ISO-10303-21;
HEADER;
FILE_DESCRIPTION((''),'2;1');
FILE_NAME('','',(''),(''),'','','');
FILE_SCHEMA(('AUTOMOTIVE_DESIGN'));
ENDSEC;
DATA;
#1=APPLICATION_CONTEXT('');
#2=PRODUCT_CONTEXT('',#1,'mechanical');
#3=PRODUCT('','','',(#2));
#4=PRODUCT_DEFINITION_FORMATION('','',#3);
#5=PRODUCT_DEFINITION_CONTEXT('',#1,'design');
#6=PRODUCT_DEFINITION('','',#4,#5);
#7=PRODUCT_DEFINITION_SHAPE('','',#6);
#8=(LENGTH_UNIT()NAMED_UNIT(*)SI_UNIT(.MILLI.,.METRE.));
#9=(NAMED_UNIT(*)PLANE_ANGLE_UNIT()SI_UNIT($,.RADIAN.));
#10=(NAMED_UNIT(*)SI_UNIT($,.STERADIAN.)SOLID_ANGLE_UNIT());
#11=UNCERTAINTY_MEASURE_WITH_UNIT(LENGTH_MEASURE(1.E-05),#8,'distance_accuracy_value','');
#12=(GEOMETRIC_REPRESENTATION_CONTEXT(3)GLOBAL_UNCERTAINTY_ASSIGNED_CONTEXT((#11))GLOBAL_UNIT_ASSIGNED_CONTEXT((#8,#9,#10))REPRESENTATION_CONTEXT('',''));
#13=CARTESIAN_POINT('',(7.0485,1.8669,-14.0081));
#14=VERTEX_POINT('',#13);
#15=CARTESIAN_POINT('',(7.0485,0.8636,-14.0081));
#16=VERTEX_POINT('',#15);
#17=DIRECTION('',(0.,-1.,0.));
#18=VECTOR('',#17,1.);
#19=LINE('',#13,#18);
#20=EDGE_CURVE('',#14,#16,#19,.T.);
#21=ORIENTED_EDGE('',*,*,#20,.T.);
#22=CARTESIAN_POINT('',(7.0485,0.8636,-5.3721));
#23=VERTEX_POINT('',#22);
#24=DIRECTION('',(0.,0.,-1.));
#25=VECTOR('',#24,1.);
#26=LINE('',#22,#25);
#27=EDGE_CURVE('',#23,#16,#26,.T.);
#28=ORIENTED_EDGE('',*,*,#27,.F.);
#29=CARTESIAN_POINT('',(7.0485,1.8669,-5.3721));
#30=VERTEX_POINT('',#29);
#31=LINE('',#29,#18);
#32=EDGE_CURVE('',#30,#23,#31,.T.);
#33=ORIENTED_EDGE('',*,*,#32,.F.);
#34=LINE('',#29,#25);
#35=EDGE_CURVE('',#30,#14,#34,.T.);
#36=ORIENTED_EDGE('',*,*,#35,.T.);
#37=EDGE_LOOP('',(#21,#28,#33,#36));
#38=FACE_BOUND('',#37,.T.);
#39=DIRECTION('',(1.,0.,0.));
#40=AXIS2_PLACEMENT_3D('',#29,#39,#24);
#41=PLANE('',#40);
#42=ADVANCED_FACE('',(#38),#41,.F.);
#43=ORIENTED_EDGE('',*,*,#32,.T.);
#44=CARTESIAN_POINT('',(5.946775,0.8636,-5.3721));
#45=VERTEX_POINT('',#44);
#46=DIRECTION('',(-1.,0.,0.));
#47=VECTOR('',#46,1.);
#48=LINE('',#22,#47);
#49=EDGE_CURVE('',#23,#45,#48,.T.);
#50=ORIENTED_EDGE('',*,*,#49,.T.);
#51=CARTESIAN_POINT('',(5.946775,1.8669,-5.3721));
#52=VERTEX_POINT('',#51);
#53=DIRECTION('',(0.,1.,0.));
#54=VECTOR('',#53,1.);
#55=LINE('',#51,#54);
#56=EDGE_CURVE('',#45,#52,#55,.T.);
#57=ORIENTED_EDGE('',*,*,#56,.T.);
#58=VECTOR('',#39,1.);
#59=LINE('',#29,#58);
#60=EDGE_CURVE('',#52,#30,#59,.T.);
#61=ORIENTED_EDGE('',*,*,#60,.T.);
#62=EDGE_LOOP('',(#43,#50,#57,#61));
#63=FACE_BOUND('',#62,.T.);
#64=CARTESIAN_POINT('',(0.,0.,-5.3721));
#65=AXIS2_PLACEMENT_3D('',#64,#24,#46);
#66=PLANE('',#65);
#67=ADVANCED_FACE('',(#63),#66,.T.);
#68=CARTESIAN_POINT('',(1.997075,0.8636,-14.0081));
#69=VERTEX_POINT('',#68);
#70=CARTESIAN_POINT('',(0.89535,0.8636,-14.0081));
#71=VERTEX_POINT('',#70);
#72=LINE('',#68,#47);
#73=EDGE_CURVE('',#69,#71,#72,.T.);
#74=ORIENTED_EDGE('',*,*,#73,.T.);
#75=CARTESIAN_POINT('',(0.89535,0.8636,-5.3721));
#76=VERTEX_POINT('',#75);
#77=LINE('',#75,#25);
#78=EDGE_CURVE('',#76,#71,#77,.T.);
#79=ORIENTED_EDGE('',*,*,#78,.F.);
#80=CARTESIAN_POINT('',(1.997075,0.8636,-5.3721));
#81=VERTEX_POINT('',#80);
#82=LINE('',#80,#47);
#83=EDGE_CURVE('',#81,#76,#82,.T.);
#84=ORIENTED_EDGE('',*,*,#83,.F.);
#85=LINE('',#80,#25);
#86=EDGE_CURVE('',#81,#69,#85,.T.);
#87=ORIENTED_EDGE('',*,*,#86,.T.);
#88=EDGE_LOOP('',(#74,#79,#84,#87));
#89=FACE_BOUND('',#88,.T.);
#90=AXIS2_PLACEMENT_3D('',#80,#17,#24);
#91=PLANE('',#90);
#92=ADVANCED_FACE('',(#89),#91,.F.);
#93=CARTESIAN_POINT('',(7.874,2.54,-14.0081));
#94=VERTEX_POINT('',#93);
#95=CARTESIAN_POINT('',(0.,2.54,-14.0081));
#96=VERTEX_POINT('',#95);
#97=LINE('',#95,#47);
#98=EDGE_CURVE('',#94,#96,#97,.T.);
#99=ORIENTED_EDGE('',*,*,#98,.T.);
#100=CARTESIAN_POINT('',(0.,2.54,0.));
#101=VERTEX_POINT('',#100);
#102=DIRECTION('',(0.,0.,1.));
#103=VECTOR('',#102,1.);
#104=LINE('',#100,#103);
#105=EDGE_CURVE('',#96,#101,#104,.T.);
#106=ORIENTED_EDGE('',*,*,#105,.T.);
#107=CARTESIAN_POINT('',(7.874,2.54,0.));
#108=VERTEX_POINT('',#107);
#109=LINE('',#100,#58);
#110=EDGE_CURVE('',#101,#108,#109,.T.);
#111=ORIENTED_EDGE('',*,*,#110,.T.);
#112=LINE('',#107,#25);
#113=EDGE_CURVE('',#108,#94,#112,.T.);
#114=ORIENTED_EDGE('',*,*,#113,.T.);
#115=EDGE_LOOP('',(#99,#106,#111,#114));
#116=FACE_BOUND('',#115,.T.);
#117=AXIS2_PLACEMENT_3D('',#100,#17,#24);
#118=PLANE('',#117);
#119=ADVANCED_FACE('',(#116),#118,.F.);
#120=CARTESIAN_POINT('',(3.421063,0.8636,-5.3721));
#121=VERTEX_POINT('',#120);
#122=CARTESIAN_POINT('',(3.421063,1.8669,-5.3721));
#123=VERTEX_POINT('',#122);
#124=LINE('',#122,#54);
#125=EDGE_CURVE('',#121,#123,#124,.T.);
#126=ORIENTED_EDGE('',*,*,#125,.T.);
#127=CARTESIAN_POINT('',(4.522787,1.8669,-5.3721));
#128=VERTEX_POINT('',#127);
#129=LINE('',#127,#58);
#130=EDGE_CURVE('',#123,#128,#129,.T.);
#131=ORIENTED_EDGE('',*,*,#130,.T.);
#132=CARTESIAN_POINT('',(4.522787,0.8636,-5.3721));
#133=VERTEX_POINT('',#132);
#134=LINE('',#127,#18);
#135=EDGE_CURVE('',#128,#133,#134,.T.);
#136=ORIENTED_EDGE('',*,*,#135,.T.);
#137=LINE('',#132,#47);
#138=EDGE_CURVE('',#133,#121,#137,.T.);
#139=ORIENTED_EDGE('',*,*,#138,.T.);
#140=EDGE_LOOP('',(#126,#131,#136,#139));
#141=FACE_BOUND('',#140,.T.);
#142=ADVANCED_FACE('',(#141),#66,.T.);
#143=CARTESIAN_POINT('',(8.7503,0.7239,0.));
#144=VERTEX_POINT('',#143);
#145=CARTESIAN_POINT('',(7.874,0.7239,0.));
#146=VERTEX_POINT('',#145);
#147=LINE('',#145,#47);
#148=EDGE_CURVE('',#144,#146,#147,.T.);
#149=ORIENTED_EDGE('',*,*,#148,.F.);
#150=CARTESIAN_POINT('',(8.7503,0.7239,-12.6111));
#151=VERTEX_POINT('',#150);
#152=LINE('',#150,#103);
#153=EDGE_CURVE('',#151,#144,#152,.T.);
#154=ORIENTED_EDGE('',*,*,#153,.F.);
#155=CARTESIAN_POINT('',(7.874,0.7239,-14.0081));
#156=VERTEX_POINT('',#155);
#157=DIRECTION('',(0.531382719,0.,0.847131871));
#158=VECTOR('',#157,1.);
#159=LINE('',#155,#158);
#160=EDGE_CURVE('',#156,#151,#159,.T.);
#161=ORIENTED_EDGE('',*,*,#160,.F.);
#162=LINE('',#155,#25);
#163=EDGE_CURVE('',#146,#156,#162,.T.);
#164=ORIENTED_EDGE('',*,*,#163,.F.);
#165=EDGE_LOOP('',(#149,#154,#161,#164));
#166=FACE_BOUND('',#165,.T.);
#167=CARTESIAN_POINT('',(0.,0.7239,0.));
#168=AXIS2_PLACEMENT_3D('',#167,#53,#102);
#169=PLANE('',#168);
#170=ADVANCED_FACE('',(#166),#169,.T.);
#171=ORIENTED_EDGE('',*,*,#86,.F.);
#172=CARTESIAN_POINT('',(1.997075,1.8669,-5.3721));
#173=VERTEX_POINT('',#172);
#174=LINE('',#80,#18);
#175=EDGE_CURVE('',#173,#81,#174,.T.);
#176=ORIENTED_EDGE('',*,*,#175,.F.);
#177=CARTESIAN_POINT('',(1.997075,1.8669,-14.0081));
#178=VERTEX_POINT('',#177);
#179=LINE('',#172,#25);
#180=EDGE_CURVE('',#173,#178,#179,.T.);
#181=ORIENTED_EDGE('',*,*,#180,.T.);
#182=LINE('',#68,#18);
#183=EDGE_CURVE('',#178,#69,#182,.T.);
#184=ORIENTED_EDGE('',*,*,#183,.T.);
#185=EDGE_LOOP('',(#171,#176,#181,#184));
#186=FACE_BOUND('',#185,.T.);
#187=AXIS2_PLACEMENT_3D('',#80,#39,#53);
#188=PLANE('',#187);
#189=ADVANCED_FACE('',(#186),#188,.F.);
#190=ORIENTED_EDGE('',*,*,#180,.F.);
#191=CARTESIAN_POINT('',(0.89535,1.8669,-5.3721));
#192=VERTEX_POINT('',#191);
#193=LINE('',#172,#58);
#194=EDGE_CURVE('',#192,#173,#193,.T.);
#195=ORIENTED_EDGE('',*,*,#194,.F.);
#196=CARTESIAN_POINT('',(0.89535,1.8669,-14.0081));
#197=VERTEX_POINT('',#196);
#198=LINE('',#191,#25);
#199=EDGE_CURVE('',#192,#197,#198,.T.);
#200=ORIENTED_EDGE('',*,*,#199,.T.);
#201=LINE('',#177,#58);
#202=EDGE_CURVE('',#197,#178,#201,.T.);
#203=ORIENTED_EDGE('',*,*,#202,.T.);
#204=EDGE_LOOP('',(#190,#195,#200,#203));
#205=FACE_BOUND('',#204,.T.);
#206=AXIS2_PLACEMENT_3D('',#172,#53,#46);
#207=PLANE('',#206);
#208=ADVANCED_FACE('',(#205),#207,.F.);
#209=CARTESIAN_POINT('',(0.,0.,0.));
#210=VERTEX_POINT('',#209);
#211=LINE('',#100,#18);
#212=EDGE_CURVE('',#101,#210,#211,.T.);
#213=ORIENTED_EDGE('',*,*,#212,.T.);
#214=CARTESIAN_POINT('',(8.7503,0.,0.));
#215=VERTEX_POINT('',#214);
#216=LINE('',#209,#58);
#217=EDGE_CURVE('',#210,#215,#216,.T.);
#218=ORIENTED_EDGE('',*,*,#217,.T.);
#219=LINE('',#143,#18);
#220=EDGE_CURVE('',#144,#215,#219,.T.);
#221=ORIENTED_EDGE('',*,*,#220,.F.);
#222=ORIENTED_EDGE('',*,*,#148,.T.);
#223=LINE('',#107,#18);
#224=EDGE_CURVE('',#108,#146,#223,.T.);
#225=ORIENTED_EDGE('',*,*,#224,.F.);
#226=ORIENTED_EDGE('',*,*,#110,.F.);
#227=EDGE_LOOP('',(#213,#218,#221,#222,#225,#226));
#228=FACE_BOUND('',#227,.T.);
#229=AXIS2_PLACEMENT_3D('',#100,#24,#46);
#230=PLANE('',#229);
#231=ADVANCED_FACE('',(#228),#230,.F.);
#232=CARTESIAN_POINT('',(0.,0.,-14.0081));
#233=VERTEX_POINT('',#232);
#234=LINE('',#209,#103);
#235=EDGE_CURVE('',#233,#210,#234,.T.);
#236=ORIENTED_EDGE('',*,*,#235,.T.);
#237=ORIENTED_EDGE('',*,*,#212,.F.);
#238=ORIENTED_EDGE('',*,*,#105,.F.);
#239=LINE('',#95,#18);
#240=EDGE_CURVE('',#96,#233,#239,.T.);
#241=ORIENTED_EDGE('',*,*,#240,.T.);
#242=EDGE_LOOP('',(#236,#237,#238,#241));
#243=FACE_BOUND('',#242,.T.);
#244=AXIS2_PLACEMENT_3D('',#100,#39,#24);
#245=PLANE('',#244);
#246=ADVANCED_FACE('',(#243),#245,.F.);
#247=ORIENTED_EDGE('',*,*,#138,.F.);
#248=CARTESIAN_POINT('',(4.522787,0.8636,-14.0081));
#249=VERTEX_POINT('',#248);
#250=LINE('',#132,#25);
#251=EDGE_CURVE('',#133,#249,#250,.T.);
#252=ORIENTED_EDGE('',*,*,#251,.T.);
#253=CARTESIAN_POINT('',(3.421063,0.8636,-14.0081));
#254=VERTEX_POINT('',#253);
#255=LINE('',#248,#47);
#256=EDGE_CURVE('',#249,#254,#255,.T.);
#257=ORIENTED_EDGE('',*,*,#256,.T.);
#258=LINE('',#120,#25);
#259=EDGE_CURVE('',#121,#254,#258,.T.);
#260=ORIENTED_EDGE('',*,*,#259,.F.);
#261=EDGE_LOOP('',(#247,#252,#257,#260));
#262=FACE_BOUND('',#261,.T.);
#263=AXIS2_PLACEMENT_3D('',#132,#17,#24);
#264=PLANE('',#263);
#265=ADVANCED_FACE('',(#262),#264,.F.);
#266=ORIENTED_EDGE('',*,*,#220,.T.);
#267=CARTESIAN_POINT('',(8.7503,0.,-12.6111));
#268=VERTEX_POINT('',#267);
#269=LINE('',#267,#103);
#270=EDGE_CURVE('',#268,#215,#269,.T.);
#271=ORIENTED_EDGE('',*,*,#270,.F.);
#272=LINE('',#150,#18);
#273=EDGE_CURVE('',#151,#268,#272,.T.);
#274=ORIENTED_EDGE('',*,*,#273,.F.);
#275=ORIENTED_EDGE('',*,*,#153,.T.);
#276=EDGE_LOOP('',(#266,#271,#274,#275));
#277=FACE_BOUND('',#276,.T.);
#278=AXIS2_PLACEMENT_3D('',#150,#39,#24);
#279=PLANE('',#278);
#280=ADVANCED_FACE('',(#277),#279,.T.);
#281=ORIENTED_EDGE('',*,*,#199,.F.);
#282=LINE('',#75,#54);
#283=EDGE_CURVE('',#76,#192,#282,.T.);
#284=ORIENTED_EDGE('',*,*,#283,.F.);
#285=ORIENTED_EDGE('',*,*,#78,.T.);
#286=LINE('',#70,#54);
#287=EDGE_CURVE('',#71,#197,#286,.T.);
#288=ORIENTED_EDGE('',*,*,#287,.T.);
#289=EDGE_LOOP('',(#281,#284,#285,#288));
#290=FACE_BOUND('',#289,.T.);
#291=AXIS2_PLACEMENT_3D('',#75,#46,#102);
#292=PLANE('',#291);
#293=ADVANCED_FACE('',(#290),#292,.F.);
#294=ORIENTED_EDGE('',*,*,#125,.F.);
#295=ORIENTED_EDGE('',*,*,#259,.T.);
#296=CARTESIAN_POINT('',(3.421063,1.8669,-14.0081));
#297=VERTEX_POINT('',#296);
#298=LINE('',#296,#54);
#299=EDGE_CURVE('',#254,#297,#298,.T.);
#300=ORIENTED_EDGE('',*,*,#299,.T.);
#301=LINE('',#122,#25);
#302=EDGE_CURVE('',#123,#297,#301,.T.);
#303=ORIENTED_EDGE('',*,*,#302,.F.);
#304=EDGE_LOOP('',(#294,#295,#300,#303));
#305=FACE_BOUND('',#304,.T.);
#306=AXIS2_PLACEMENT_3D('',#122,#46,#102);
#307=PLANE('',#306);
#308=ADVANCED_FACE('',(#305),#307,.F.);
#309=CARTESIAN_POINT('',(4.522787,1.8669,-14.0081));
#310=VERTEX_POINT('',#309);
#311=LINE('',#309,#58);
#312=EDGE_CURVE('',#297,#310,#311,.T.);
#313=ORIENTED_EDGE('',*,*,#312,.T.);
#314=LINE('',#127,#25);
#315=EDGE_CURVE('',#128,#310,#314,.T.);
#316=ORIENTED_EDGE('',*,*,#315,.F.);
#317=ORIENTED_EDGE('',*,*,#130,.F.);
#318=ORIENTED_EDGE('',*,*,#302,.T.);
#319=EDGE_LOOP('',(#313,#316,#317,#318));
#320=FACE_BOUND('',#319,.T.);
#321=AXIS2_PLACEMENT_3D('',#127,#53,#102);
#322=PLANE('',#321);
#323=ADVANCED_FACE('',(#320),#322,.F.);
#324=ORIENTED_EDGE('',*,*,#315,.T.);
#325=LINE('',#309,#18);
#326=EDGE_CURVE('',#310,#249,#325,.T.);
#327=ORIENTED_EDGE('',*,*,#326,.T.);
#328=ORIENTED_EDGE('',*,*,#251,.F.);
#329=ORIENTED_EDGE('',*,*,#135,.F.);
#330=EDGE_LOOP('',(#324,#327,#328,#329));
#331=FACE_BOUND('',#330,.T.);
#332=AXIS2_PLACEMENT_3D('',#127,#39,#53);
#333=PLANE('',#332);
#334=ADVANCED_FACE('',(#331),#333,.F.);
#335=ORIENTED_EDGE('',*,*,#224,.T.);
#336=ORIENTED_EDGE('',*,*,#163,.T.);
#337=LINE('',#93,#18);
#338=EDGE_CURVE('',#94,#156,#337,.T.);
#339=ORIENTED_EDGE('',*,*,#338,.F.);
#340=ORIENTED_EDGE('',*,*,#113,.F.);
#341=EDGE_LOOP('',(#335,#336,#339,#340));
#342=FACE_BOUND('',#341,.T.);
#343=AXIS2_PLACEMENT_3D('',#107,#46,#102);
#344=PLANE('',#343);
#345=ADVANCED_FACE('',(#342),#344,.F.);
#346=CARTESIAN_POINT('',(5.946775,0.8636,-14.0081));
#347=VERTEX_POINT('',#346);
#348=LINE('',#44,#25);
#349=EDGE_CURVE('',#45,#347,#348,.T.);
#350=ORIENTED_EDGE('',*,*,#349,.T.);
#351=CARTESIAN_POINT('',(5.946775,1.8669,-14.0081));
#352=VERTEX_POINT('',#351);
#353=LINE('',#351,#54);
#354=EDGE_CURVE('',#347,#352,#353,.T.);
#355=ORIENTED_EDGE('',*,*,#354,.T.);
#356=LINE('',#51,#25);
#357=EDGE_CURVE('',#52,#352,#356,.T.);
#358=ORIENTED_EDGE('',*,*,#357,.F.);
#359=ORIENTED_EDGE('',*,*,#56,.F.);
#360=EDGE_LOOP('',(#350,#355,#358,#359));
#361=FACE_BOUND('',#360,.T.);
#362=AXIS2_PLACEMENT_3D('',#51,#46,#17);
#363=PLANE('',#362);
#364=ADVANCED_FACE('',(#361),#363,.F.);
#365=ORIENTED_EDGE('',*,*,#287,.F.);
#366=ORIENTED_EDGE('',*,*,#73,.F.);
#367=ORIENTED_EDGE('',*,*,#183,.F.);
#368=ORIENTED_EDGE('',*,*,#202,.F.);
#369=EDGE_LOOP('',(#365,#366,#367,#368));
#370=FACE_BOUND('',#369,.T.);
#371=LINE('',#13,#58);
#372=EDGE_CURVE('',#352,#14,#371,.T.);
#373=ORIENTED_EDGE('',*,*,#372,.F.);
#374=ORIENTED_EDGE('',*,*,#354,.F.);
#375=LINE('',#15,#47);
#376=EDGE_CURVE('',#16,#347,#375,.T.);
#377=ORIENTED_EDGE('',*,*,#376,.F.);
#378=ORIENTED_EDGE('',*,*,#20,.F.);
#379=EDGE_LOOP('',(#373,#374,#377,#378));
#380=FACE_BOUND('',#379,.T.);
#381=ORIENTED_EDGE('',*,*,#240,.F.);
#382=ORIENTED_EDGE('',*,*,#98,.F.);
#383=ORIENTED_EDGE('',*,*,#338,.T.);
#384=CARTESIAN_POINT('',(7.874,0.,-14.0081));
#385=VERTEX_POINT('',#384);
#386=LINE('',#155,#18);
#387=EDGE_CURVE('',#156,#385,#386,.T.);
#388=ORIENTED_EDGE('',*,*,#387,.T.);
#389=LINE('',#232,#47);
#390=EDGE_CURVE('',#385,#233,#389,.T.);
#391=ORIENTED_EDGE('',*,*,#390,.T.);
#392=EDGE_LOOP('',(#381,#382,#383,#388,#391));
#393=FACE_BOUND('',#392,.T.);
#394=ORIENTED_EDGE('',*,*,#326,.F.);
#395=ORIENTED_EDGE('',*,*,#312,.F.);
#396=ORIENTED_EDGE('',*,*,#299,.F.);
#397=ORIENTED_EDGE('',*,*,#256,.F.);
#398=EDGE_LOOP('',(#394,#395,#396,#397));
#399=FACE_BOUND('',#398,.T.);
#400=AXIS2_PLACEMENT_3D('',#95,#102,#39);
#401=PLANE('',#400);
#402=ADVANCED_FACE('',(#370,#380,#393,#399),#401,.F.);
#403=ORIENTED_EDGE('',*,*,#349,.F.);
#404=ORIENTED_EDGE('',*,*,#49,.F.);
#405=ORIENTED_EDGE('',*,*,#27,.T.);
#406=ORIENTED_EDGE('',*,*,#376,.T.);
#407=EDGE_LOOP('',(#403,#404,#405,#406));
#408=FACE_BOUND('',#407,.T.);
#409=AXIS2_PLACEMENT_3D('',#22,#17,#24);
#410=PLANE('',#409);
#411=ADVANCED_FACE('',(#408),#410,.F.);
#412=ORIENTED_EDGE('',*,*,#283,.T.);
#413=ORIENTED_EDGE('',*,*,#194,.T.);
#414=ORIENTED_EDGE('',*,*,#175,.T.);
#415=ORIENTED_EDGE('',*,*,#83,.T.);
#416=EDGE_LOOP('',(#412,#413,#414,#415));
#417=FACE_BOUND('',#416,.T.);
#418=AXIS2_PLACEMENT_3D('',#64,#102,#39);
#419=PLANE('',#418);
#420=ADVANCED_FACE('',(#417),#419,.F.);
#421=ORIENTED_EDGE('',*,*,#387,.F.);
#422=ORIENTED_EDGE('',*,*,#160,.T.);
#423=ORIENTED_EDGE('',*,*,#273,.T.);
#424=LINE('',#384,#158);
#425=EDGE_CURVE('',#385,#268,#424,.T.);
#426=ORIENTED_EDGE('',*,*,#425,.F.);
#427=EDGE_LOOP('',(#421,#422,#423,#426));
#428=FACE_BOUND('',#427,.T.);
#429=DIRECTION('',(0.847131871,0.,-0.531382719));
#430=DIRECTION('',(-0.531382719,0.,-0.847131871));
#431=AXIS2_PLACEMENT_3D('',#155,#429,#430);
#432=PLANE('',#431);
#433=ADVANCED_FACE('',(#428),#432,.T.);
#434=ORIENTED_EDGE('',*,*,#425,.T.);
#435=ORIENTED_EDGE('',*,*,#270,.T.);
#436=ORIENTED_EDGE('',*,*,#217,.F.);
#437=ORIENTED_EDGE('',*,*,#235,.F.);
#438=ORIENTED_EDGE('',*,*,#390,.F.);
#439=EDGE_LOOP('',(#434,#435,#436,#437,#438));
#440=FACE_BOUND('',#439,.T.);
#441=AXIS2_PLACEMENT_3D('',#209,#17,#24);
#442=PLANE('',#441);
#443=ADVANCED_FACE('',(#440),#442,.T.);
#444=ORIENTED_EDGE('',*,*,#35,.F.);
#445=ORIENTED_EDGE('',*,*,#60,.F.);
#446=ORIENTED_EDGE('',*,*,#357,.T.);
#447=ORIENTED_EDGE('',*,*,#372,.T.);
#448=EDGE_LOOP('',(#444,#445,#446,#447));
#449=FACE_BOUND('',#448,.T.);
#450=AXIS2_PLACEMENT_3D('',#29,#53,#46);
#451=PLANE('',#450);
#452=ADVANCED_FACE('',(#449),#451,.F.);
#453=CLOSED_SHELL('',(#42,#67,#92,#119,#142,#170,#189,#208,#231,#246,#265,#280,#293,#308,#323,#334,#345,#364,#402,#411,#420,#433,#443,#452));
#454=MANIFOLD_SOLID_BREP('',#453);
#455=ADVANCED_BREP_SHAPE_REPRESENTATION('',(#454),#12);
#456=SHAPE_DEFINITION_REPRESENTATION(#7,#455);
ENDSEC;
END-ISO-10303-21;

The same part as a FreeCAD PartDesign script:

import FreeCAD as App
import Part
import Sketcher
from FreeCAD import Vector
Q = App.Units.Quantity


def add_polygon(sketch, points):
    """Adds a closed chain of lines whose ends are joined by coincident constraints."""
    first, n = sketch.GeometryCount, len(points)
    for a, b in zip(points, points[1:] + points[:1]):
        sketch.addGeometry(Part.LineSegment(App.Vector(*a, 0), App.Vector(*b, 0)), False)
    for i in range(n):
        sketch.addConstraint(Sketcher.Constraint("Coincident", first + i, 2, first + (i + 1) % n, 1))

doc = App.newDocument("Part")
body = doc.addObject("PartDesign::Body", "Body")

sketch1 = body.newObject("Sketcher::SketchObject", "Sketch")
sketch1.AttachmentSupport = (doc.getObject("XZ_Plane"), [""])
sketch1.MapMode = "FlatFace"
add_polygon(sketch1, [(0, -14), (0, 0), (8, 0), (8, -14)])
sketch1.addConstraint([
    Sketcher.Constraint("Vertical", 0),
    Sketcher.Constraint("Horizontal", 1),
    Sketcher.Constraint("Vertical", 2),
    Sketcher.Constraint("Horizontal", 3),
    Sketcher.Constraint("Coincident", 0, 2, -1, 1),
    Sketcher.Constraint("DistanceX", 1, 1, 1, 2, Q("0.31 in")),
    Sketcher.Constraint("DistanceY", 0, 1, 0, 2, Q("0.5515 in")),
])
pad1 = body.newObject("PartDesign::Pad", "Pad")
pad1.Profile = sketch1
pad1.Length = Q("0.1 in")
pad1.Reversed = True

sketch2 = body.newObject("Sketcher::SketchObject", "Sketch001")
sketch2.AttachmentSupport = (doc.getObject("XY_Plane"), [""])
sketch2.MapMode = "FlatFace"
sketch2.AttachmentOffset = App.Placement(Vector(0, 0, -0.5515 * 25.4), App.Rotation())
add_polygon(sketch2, [(7, 1.9), (7, 0.9), (5.9, 0.9), (5.9, 1.9)])
add_polygon(sketch2, [(4.5, 1.9), (4.5, 0.9), (3.4, 0.9), (3.4, 1.9)])
add_polygon(sketch2, [(2, 1.9), (2, 0.9), (0.9, 0.9), (0.9, 1.9)])
sketch2.addConstraint([
    Sketcher.Constraint("Vertical", 0),
    Sketcher.Constraint("Horizontal", 1),
    Sketcher.Constraint("Vertical", 2),
    Sketcher.Constraint("Horizontal", 3),
    Sketcher.Constraint("Vertical", 4),
    Sketcher.Constraint("Horizontal", 5),
    Sketcher.Constraint("Vertical", 6),
    Sketcher.Constraint("Horizontal", 7),
    Sketcher.Constraint("Vertical", 8),
    Sketcher.Constraint("Horizontal", 9),
    Sketcher.Constraint("Vertical", 10),
    Sketcher.Constraint("Horizontal", 11),
    Sketcher.Constraint("Horizontal", 1, 2, 4, 2),
    Sketcher.Constraint("Horizontal", 3, 2, 6, 2),
    Sketcher.Constraint("Horizontal", 5, 2, 8, 2),
    Sketcher.Constraint("Horizontal", 7, 2, 10, 2),
    Sketcher.Constraint("Equal", 3, 5),
    Sketcher.Constraint("Equal", 7, 9),
    Sketcher.Constraint("DistanceY", 0, 2, 0, 1, Q("0.0395 in")),
    Sketcher.Constraint("DistanceY", -1, 1, 0, 2, Q("0.034 in")),
    Sketcher.Constraint("DistanceX", -1, 1, 0, 2, Q("0.2775 in")),
    Sketcher.Constraint("DistanceX", 8, 2, 1, 2, Q("0.1555 in")),
    Sketcher.Constraint("DistanceX", 1, 2, 1, 1, Q("1.101725 mm")),
    Sketcher.Constraint("DistanceX", -1, 1, 4, 2, Q("4.522787 mm")),
])
pocket1 = body.newObject("PartDesign::Pocket", "Pocket")
pocket1.Profile = sketch2
pocket1.Length = Q("0.34 in")
pocket1.Reversed = True

sketch3 = body.newObject("Sketcher::SketchObject", "Sketch002")
sketch3.AttachmentSupport = (doc.getObject("XZ_Plane"), [""])
sketch3.MapMode = "FlatFace"
add_polygon(sketch3, [(7.9, 0), (7.9, -14), (8.8, -12.6), (8.8, 0)])
sketch3.addConstraint([
    Sketcher.Constraint("Vertical", 0),
    Sketcher.Constraint("Vertical", 2),
    Sketcher.Constraint("Horizontal", 3),
    Sketcher.Constraint("PointOnObject", 2, 2, -1),
    Sketcher.Constraint("DistanceX", -1, 1, 0, 2, Q("0.31 in")),
    Sketcher.Constraint("DistanceX", 3, 2, 3, 1, Q("0.0345 in")),
    Sketcher.Constraint("DistanceY", 0, 2, 0, 1, Q("0.5515 in")),
    Sketcher.Constraint("DistanceY", 2, 1, 2, 2, Q("0.4965 in")),
])
pad2 = body.newObject("PartDesign::Pad", "Pad001")
pad2.Profile = sketch3
pad2.Length = Q("0.0285 in")
pad2.Reversed = True

doc.recompute()
